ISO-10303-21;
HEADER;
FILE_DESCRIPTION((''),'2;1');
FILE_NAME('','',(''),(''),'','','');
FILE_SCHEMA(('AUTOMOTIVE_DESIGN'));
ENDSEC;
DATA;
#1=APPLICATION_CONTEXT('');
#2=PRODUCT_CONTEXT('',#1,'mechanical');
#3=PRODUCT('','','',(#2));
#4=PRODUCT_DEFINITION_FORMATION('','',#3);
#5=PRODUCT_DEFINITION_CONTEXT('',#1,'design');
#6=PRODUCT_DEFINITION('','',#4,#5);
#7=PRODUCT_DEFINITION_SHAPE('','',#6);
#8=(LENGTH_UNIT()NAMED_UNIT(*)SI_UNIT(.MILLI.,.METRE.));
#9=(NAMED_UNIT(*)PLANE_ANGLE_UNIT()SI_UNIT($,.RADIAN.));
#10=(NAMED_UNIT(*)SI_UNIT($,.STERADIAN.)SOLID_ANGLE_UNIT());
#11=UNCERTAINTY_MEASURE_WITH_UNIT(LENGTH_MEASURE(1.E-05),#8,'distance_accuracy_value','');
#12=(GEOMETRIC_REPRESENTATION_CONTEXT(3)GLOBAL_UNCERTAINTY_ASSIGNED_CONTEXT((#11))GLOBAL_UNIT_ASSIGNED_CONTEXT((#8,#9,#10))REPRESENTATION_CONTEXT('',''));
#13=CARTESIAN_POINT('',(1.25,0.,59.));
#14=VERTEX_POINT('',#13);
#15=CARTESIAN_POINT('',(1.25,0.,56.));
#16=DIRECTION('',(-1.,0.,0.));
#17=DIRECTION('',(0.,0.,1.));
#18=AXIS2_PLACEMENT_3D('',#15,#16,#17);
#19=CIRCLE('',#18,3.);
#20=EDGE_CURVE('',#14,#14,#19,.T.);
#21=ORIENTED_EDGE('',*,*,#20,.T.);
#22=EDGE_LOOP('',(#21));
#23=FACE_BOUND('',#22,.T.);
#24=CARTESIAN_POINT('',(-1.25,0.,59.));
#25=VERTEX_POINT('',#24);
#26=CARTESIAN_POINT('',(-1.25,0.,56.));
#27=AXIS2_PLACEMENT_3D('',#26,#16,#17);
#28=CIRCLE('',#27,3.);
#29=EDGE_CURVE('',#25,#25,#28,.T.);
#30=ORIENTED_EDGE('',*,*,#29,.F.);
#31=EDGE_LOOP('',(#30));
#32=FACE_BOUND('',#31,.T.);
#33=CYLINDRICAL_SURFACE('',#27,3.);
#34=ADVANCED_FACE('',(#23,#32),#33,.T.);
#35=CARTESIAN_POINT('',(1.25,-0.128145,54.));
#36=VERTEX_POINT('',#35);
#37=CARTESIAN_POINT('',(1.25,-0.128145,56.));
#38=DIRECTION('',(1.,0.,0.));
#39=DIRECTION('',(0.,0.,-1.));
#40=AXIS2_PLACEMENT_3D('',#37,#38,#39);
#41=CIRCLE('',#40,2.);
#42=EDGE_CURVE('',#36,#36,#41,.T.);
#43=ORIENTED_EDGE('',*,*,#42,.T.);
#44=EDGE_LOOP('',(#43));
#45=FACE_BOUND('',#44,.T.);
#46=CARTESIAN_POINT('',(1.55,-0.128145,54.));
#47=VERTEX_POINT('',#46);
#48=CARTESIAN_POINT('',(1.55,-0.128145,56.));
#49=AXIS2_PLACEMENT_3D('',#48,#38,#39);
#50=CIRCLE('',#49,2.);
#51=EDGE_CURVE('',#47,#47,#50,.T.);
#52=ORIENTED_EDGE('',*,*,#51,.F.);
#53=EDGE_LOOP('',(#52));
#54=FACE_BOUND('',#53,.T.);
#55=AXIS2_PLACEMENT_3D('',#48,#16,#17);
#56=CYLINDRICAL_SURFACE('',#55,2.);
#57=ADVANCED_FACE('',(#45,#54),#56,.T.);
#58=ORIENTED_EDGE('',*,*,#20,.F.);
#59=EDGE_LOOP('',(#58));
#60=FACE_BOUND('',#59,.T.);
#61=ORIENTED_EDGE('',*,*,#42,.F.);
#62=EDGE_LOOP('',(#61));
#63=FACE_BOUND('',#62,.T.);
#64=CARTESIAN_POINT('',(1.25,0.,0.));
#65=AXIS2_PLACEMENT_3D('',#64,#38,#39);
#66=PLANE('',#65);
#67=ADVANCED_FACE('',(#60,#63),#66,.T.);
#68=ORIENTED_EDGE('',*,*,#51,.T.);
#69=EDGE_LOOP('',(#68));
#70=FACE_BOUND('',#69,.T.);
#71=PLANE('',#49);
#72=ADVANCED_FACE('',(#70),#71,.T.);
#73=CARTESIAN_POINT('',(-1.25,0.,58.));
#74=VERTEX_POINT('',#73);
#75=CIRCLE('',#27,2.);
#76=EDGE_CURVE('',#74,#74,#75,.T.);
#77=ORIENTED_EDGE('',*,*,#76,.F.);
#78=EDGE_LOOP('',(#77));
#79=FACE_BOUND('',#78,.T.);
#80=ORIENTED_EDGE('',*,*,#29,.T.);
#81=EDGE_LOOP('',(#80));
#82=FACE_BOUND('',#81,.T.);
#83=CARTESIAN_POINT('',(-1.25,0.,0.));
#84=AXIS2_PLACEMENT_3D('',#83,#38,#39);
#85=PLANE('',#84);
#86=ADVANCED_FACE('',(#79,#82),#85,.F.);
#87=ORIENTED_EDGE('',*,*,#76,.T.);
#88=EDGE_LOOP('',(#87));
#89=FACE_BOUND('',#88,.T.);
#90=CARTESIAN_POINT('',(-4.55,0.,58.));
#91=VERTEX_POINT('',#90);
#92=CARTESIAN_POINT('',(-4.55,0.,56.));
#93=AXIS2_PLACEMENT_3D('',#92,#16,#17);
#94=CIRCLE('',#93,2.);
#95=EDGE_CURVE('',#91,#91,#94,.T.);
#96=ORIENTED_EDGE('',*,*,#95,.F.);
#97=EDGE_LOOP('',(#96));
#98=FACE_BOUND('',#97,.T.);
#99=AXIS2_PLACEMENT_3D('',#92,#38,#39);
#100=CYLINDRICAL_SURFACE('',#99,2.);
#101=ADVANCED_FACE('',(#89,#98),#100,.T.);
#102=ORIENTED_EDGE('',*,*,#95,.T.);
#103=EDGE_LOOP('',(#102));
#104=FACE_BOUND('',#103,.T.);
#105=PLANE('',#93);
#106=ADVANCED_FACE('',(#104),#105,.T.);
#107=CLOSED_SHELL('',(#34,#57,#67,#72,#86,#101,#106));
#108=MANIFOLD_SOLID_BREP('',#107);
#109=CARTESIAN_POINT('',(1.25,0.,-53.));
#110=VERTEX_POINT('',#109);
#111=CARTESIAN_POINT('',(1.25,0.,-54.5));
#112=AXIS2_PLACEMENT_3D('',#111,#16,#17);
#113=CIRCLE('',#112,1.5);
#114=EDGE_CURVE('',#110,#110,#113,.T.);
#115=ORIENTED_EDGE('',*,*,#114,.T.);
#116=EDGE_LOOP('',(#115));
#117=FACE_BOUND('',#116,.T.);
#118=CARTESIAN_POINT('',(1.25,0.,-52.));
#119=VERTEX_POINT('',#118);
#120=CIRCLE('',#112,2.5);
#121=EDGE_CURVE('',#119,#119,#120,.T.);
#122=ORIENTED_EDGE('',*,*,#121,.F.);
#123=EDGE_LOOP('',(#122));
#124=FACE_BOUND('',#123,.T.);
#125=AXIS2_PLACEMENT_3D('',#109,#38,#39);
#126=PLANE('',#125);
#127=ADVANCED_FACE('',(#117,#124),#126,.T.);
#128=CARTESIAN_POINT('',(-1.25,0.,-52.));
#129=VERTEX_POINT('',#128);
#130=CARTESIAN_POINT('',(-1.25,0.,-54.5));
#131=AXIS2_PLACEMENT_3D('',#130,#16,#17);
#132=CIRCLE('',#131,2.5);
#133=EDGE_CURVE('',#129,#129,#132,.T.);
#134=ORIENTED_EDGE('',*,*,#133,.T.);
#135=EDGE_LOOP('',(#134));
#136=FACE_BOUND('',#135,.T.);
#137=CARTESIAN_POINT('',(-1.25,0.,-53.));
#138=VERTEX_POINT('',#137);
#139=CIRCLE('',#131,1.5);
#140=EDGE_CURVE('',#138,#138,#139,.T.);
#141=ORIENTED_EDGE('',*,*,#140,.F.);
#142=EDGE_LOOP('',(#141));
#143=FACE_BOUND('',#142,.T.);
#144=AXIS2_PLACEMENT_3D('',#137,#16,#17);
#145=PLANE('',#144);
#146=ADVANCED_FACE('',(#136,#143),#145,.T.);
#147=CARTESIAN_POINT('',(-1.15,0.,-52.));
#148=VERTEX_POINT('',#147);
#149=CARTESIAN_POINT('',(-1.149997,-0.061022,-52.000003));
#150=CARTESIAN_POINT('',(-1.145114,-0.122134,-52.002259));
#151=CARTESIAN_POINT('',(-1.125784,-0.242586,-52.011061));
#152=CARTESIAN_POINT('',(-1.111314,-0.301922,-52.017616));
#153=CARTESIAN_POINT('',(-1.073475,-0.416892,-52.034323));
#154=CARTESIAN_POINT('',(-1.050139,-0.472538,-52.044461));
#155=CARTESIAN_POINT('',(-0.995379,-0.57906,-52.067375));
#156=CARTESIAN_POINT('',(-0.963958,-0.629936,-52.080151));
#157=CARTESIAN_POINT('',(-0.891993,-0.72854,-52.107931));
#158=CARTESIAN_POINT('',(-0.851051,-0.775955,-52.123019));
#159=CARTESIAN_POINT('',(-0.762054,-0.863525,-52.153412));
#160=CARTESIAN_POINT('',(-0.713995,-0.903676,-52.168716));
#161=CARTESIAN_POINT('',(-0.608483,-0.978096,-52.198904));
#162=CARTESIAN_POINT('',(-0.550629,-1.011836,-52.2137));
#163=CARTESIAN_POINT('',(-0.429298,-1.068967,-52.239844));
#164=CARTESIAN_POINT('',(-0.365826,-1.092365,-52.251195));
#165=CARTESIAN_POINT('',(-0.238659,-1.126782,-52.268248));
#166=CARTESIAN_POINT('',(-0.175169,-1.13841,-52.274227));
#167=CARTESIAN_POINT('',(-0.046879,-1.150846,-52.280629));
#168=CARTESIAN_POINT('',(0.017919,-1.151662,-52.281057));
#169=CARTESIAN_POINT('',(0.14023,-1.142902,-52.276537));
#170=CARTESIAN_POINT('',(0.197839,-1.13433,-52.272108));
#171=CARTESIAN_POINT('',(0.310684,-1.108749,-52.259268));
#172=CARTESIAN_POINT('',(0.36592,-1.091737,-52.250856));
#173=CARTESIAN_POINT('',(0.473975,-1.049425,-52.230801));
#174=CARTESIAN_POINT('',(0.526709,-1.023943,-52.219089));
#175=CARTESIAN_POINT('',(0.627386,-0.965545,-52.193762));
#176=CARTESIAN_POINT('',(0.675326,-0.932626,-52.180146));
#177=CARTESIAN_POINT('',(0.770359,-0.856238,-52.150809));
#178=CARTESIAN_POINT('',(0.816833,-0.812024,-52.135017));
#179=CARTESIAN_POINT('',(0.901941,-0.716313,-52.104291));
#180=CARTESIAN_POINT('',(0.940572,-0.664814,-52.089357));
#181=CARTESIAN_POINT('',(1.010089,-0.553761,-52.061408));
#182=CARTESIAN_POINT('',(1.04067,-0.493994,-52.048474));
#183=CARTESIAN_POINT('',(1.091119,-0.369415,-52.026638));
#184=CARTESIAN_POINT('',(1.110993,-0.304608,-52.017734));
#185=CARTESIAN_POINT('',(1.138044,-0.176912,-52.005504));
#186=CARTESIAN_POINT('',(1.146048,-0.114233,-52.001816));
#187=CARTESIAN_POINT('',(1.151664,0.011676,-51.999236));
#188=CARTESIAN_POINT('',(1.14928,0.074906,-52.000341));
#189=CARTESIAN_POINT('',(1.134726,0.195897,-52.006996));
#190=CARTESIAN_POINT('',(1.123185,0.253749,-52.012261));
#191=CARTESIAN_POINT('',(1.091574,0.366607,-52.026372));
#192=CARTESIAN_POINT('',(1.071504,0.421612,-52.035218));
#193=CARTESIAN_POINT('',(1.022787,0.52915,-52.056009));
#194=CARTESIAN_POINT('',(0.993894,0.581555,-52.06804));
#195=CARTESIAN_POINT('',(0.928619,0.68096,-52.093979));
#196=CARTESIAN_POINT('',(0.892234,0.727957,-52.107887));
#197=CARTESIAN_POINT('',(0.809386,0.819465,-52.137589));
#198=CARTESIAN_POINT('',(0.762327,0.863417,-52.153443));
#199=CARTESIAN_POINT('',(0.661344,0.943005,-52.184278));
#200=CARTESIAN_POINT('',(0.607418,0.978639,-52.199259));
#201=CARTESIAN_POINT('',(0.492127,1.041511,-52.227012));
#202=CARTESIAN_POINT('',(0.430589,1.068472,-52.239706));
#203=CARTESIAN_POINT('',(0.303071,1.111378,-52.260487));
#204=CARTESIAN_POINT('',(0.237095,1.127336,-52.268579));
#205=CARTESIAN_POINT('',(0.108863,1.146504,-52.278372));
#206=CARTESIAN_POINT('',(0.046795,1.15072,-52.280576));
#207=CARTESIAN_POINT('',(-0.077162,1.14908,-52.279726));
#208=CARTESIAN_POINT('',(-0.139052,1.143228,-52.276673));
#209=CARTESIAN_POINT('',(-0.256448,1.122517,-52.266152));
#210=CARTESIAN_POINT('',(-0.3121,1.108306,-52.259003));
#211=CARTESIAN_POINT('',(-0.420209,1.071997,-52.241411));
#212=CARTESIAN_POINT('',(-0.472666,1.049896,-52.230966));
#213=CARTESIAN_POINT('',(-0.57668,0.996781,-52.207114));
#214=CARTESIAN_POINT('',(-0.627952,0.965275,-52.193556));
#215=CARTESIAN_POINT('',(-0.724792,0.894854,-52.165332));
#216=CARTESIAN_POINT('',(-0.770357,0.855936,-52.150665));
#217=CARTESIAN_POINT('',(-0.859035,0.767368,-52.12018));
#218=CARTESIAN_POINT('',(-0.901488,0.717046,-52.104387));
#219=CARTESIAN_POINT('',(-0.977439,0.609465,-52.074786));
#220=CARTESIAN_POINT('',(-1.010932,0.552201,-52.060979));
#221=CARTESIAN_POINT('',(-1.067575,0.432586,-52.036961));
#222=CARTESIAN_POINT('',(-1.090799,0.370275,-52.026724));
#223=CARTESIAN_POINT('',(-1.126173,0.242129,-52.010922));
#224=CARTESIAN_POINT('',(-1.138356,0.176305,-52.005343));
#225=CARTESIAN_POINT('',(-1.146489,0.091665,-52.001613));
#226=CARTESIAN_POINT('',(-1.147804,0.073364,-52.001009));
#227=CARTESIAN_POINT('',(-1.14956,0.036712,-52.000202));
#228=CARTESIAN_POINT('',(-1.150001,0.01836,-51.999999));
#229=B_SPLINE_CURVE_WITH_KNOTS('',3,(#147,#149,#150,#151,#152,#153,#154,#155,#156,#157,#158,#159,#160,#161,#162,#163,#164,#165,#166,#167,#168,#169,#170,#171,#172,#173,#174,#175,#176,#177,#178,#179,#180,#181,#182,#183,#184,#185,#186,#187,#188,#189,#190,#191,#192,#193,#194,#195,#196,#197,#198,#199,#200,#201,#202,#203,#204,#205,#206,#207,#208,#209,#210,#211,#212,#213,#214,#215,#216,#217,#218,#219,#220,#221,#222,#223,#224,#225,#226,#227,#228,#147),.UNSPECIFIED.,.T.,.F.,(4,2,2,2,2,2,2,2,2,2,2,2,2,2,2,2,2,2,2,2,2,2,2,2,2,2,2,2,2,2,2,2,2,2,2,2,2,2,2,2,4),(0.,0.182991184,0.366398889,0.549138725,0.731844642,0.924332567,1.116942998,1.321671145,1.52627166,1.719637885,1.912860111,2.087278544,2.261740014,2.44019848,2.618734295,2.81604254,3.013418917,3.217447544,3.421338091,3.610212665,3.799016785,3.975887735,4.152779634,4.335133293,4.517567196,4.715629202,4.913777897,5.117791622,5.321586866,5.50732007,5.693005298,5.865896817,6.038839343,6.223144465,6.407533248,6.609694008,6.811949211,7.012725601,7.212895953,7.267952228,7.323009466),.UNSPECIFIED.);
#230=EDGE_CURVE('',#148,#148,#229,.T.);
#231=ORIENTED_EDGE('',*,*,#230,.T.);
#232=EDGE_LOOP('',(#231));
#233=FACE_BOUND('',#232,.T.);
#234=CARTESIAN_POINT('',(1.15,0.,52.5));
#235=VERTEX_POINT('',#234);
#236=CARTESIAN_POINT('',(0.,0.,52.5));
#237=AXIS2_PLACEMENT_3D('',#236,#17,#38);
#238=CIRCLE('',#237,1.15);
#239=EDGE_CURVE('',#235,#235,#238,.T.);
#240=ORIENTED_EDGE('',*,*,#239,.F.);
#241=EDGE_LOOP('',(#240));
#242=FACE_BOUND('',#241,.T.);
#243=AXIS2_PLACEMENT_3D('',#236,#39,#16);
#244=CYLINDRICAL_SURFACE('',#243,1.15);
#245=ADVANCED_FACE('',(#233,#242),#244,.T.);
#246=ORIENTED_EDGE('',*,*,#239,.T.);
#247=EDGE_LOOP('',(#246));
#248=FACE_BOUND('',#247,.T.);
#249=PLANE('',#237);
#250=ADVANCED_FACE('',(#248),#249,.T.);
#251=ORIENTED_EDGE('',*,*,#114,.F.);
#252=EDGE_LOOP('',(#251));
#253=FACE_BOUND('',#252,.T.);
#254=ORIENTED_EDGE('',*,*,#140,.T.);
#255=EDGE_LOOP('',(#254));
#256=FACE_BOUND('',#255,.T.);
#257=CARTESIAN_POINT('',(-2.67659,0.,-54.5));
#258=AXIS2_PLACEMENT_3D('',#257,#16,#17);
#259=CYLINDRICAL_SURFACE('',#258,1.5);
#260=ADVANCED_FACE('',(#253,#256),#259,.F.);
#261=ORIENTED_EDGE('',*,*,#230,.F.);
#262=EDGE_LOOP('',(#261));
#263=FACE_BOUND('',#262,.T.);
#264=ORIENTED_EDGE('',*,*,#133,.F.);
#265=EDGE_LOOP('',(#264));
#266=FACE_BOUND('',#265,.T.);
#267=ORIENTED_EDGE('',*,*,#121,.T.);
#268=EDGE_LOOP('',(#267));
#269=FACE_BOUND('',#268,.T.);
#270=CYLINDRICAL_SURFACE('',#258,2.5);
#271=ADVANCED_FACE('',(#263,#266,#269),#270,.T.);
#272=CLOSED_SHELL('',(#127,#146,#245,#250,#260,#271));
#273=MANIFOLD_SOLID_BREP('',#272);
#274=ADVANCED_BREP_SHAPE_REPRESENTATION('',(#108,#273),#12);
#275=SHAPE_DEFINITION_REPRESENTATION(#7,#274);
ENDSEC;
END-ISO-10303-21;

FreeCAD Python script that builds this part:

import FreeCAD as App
import Part
import Sketcher

V = App.Vector


def add_polygon(sketch, points):
    """Adds a closed chain of lines whose ends are joined by coincident constraints."""
    first, n = sketch.GeometryCount, len(points)
    for a, b in zip(points, points[1:] + points[:1]):
        sketch.addGeometry(Part.LineSegment(App.Vector(*a, 0), App.Vector(*b, 0)), False)
    for i in range(n):
        sketch.addConstraint(Sketcher.Constraint("Coincident", first + i, 2, first + (i + 1) % n, 1))

doc = App.newDocument("Part")
body = doc.addObject("PartDesign::Body", "Body")

# Sketch on XY plane
sketch1 = body.newObject("Sketcher::SketchObject", "Sketch")
sketch1.AttachmentSupport = (doc.getObject("XY_Plane"), [""])
sketch1.MapMode = "FlatFace"
sketch1.addGeometry(Part.Circle(V(0, 0, 0), V(0, 0, 1), 1.1), False)
sketch1.addConstraint(Sketcher.Constraint("Coincident", 0, 3, -1, 1))
sketch1.addConstraint(Sketcher.Constraint("Diameter", 0, 2.3))
pad1 = body.newObject("PartDesign::Pad", "Pad")
pad1.Profile = sketch1
pad1.Length = 105
pad1.Midplane = True

# Sketch on XZ plane
sketch2 = body.newObject("Sketcher::SketchObject", "Sketch001")
sketch2.AttachmentSupport = (doc.getObject("XZ_Plane"), [""])
sketch2.MapMode = "FlatFace"
add_polygon(sketch2, [(-1.2, -53), (-1.2, -52), (1.2, -52), (1.2, -53)])  # lines 0-3
sketch2.addGeometry(Part.LineSegment(V(-1.2, -54.5, 0), V(1.2, -54.5, 0)), True)  # axis
sketch2.addConstraint(Sketcher.Constraint("Vertical", 0))
sketch2.addConstraint(Sketcher.Constraint("Horizontal", 1))
sketch2.addConstraint(Sketcher.Constraint("Vertical", 2))
sketch2.addConstraint(Sketcher.Constraint("Horizontal", 3))
sketch2.addConstraint(Sketcher.Constraint("Horizontal", 4))
sketch2.addConstraint(Sketcher.Constraint("Vertical", 3, 2, 4, 1))
sketch2.addConstraint(Sketcher.Constraint("Vertical", 2, 2, 4, 2))
sketch2.addConstraint(Sketcher.Constraint("DistanceY", 0, 1, 0, 2, 1.0))
sketch2.addConstraint(Sketcher.Constraint("DistanceX", 1, 1, 1, 2, 2.5))
sketch2.addConstraint(Sketcher.Constraint("DistanceY", 0, 2, -1, 1, 52.0))
sketch2.addConstraint(Sketcher.Constraint("DistanceY", 4, 1, -1, 1, 54.5))
sketch2.addConstraint(Sketcher.Constraint("DistanceX", 0, 2, -1, 1, 1.25))
revolution = body.newObject("PartDesign::Revolution", "Revolution")
revolution.Profile = sketch2
revolution.ReferenceAxis = (sketch2, ["Axis0"])
revolution.Angle = 360
body2 = doc.addObject("PartDesign::Body", "Body001")

# Sketch on XZ plane
sketch3 = body2.newObject("Sketcher::SketchObject", "Sketch002")
sketch3.AttachmentSupport = (doc.getObject("XZ_Plane001"), [""])
sketch3.MapMode = "FlatFace"
add_polygon(sketch3, [(-1.2, 53), (-1.2, 56), (1.2, 56), (1.2, 53)])  # lines 0-3
sketch3.addGeometry(Part.LineSegment(V(-1.2, 56, 0), V(1.2, 56, 0)), True)  # axis
sketch3.addConstraint(Sketcher.Constraint("Vertical", 0))
sketch3.addConstraint(Sketcher.Constraint("Horizontal", 1))
sketch3.addConstraint(Sketcher.Constraint("Vertical", 2))
sketch3.addConstraint(Sketcher.Constraint("Horizontal", 3))
sketch3.addConstraint(Sketcher.Constraint("Horizontal", 4))
sketch3.addConstraint(Sketcher.Constraint("Coincident", 4, 1, 0, 2))
sketch3.addConstraint(Sketcher.Constraint("Vertical", 2, 2, 4, 2))
sketch3.addConstraint(Sketcher.Constraint("DistanceY", 0, 1, 0, 2, 3.0))
sketch3.addConstraint(Sketcher.Constraint("DistanceX", 1, 1, 1, 2, 2.5))
sketch3.addConstraint(Sketcher.Constraint("DistanceY", -1, 1, 0, 2, 56.0))
sketch3.addConstraint(Sketcher.Constraint("DistanceX", 0, 2, -1, 1, 1.25))
revolution2 = body2.newObject("PartDesign::Revolution", "Revolution001")
revolution2.Profile = sketch3
revolution2.ReferenceAxis = (sketch3, ["Axis0"])
revolution2.Angle = 360

# Sketch on YZ plane
sketch4 = body2.newObject("Sketcher::SketchObject", "Sketch003")
sketch4.AttachmentSupport = (doc.getObject("YZ_Plane001"), [""])
sketch4.MapMode = "FlatFace"
sketch4.AttachmentOffset = App.Placement(V(0, 0, -1.25), App.Rotation())
sketch4.addGeometry(Part.Circle(V(0, 56, 0), V(0, 0, 1), 2), False)
sketch4.addConstraint(Sketcher.Constraint("PointOnObject", 0, 3, -2))
sketch4.addConstraint(Sketcher.Constraint("Diameter", 0, 4.0))
sketch4.addConstraint(Sketcher.Constraint("DistanceY", -1, 1, 0, 3, 56.0))
pad2 = body2.newObject("PartDesign::Pad", "Pad001")
pad2.Profile = sketch4
pad2.Length = 3.3
pad2.Reversed = True

# Sketch on YZ plane
sketch5 = body2.newObject("Sketcher::SketchObject", "Sketch004")
sketch5.AttachmentSupport = (doc.getObject("YZ_Plane001"), [""])
sketch5.MapMode = "FlatFace"
sketch5.AttachmentOffset = App.Placement(V(0, 0, 1.25), App.Rotation())
sketch5.addGeometry(Part.Circle(V(-0.1, 56, 0), V(0, 0, 1), 2), False)
sketch5.addConstraint(Sketcher.Constraint("Diameter", 0, 4.0))
sketch5.addConstraint(Sketcher.Constraint("DistanceY", -1, 1, 0, 3, 56.0))
sketch5.addConstraint(Sketcher.Constraint("DistanceX", 0, 3, -1, 1, 0.128145))
pad3 = body2.newObject("PartDesign::Pad", "Pad002")
pad3.Profile = sketch5
pad3.Length = 0.3

doc.recompute()
